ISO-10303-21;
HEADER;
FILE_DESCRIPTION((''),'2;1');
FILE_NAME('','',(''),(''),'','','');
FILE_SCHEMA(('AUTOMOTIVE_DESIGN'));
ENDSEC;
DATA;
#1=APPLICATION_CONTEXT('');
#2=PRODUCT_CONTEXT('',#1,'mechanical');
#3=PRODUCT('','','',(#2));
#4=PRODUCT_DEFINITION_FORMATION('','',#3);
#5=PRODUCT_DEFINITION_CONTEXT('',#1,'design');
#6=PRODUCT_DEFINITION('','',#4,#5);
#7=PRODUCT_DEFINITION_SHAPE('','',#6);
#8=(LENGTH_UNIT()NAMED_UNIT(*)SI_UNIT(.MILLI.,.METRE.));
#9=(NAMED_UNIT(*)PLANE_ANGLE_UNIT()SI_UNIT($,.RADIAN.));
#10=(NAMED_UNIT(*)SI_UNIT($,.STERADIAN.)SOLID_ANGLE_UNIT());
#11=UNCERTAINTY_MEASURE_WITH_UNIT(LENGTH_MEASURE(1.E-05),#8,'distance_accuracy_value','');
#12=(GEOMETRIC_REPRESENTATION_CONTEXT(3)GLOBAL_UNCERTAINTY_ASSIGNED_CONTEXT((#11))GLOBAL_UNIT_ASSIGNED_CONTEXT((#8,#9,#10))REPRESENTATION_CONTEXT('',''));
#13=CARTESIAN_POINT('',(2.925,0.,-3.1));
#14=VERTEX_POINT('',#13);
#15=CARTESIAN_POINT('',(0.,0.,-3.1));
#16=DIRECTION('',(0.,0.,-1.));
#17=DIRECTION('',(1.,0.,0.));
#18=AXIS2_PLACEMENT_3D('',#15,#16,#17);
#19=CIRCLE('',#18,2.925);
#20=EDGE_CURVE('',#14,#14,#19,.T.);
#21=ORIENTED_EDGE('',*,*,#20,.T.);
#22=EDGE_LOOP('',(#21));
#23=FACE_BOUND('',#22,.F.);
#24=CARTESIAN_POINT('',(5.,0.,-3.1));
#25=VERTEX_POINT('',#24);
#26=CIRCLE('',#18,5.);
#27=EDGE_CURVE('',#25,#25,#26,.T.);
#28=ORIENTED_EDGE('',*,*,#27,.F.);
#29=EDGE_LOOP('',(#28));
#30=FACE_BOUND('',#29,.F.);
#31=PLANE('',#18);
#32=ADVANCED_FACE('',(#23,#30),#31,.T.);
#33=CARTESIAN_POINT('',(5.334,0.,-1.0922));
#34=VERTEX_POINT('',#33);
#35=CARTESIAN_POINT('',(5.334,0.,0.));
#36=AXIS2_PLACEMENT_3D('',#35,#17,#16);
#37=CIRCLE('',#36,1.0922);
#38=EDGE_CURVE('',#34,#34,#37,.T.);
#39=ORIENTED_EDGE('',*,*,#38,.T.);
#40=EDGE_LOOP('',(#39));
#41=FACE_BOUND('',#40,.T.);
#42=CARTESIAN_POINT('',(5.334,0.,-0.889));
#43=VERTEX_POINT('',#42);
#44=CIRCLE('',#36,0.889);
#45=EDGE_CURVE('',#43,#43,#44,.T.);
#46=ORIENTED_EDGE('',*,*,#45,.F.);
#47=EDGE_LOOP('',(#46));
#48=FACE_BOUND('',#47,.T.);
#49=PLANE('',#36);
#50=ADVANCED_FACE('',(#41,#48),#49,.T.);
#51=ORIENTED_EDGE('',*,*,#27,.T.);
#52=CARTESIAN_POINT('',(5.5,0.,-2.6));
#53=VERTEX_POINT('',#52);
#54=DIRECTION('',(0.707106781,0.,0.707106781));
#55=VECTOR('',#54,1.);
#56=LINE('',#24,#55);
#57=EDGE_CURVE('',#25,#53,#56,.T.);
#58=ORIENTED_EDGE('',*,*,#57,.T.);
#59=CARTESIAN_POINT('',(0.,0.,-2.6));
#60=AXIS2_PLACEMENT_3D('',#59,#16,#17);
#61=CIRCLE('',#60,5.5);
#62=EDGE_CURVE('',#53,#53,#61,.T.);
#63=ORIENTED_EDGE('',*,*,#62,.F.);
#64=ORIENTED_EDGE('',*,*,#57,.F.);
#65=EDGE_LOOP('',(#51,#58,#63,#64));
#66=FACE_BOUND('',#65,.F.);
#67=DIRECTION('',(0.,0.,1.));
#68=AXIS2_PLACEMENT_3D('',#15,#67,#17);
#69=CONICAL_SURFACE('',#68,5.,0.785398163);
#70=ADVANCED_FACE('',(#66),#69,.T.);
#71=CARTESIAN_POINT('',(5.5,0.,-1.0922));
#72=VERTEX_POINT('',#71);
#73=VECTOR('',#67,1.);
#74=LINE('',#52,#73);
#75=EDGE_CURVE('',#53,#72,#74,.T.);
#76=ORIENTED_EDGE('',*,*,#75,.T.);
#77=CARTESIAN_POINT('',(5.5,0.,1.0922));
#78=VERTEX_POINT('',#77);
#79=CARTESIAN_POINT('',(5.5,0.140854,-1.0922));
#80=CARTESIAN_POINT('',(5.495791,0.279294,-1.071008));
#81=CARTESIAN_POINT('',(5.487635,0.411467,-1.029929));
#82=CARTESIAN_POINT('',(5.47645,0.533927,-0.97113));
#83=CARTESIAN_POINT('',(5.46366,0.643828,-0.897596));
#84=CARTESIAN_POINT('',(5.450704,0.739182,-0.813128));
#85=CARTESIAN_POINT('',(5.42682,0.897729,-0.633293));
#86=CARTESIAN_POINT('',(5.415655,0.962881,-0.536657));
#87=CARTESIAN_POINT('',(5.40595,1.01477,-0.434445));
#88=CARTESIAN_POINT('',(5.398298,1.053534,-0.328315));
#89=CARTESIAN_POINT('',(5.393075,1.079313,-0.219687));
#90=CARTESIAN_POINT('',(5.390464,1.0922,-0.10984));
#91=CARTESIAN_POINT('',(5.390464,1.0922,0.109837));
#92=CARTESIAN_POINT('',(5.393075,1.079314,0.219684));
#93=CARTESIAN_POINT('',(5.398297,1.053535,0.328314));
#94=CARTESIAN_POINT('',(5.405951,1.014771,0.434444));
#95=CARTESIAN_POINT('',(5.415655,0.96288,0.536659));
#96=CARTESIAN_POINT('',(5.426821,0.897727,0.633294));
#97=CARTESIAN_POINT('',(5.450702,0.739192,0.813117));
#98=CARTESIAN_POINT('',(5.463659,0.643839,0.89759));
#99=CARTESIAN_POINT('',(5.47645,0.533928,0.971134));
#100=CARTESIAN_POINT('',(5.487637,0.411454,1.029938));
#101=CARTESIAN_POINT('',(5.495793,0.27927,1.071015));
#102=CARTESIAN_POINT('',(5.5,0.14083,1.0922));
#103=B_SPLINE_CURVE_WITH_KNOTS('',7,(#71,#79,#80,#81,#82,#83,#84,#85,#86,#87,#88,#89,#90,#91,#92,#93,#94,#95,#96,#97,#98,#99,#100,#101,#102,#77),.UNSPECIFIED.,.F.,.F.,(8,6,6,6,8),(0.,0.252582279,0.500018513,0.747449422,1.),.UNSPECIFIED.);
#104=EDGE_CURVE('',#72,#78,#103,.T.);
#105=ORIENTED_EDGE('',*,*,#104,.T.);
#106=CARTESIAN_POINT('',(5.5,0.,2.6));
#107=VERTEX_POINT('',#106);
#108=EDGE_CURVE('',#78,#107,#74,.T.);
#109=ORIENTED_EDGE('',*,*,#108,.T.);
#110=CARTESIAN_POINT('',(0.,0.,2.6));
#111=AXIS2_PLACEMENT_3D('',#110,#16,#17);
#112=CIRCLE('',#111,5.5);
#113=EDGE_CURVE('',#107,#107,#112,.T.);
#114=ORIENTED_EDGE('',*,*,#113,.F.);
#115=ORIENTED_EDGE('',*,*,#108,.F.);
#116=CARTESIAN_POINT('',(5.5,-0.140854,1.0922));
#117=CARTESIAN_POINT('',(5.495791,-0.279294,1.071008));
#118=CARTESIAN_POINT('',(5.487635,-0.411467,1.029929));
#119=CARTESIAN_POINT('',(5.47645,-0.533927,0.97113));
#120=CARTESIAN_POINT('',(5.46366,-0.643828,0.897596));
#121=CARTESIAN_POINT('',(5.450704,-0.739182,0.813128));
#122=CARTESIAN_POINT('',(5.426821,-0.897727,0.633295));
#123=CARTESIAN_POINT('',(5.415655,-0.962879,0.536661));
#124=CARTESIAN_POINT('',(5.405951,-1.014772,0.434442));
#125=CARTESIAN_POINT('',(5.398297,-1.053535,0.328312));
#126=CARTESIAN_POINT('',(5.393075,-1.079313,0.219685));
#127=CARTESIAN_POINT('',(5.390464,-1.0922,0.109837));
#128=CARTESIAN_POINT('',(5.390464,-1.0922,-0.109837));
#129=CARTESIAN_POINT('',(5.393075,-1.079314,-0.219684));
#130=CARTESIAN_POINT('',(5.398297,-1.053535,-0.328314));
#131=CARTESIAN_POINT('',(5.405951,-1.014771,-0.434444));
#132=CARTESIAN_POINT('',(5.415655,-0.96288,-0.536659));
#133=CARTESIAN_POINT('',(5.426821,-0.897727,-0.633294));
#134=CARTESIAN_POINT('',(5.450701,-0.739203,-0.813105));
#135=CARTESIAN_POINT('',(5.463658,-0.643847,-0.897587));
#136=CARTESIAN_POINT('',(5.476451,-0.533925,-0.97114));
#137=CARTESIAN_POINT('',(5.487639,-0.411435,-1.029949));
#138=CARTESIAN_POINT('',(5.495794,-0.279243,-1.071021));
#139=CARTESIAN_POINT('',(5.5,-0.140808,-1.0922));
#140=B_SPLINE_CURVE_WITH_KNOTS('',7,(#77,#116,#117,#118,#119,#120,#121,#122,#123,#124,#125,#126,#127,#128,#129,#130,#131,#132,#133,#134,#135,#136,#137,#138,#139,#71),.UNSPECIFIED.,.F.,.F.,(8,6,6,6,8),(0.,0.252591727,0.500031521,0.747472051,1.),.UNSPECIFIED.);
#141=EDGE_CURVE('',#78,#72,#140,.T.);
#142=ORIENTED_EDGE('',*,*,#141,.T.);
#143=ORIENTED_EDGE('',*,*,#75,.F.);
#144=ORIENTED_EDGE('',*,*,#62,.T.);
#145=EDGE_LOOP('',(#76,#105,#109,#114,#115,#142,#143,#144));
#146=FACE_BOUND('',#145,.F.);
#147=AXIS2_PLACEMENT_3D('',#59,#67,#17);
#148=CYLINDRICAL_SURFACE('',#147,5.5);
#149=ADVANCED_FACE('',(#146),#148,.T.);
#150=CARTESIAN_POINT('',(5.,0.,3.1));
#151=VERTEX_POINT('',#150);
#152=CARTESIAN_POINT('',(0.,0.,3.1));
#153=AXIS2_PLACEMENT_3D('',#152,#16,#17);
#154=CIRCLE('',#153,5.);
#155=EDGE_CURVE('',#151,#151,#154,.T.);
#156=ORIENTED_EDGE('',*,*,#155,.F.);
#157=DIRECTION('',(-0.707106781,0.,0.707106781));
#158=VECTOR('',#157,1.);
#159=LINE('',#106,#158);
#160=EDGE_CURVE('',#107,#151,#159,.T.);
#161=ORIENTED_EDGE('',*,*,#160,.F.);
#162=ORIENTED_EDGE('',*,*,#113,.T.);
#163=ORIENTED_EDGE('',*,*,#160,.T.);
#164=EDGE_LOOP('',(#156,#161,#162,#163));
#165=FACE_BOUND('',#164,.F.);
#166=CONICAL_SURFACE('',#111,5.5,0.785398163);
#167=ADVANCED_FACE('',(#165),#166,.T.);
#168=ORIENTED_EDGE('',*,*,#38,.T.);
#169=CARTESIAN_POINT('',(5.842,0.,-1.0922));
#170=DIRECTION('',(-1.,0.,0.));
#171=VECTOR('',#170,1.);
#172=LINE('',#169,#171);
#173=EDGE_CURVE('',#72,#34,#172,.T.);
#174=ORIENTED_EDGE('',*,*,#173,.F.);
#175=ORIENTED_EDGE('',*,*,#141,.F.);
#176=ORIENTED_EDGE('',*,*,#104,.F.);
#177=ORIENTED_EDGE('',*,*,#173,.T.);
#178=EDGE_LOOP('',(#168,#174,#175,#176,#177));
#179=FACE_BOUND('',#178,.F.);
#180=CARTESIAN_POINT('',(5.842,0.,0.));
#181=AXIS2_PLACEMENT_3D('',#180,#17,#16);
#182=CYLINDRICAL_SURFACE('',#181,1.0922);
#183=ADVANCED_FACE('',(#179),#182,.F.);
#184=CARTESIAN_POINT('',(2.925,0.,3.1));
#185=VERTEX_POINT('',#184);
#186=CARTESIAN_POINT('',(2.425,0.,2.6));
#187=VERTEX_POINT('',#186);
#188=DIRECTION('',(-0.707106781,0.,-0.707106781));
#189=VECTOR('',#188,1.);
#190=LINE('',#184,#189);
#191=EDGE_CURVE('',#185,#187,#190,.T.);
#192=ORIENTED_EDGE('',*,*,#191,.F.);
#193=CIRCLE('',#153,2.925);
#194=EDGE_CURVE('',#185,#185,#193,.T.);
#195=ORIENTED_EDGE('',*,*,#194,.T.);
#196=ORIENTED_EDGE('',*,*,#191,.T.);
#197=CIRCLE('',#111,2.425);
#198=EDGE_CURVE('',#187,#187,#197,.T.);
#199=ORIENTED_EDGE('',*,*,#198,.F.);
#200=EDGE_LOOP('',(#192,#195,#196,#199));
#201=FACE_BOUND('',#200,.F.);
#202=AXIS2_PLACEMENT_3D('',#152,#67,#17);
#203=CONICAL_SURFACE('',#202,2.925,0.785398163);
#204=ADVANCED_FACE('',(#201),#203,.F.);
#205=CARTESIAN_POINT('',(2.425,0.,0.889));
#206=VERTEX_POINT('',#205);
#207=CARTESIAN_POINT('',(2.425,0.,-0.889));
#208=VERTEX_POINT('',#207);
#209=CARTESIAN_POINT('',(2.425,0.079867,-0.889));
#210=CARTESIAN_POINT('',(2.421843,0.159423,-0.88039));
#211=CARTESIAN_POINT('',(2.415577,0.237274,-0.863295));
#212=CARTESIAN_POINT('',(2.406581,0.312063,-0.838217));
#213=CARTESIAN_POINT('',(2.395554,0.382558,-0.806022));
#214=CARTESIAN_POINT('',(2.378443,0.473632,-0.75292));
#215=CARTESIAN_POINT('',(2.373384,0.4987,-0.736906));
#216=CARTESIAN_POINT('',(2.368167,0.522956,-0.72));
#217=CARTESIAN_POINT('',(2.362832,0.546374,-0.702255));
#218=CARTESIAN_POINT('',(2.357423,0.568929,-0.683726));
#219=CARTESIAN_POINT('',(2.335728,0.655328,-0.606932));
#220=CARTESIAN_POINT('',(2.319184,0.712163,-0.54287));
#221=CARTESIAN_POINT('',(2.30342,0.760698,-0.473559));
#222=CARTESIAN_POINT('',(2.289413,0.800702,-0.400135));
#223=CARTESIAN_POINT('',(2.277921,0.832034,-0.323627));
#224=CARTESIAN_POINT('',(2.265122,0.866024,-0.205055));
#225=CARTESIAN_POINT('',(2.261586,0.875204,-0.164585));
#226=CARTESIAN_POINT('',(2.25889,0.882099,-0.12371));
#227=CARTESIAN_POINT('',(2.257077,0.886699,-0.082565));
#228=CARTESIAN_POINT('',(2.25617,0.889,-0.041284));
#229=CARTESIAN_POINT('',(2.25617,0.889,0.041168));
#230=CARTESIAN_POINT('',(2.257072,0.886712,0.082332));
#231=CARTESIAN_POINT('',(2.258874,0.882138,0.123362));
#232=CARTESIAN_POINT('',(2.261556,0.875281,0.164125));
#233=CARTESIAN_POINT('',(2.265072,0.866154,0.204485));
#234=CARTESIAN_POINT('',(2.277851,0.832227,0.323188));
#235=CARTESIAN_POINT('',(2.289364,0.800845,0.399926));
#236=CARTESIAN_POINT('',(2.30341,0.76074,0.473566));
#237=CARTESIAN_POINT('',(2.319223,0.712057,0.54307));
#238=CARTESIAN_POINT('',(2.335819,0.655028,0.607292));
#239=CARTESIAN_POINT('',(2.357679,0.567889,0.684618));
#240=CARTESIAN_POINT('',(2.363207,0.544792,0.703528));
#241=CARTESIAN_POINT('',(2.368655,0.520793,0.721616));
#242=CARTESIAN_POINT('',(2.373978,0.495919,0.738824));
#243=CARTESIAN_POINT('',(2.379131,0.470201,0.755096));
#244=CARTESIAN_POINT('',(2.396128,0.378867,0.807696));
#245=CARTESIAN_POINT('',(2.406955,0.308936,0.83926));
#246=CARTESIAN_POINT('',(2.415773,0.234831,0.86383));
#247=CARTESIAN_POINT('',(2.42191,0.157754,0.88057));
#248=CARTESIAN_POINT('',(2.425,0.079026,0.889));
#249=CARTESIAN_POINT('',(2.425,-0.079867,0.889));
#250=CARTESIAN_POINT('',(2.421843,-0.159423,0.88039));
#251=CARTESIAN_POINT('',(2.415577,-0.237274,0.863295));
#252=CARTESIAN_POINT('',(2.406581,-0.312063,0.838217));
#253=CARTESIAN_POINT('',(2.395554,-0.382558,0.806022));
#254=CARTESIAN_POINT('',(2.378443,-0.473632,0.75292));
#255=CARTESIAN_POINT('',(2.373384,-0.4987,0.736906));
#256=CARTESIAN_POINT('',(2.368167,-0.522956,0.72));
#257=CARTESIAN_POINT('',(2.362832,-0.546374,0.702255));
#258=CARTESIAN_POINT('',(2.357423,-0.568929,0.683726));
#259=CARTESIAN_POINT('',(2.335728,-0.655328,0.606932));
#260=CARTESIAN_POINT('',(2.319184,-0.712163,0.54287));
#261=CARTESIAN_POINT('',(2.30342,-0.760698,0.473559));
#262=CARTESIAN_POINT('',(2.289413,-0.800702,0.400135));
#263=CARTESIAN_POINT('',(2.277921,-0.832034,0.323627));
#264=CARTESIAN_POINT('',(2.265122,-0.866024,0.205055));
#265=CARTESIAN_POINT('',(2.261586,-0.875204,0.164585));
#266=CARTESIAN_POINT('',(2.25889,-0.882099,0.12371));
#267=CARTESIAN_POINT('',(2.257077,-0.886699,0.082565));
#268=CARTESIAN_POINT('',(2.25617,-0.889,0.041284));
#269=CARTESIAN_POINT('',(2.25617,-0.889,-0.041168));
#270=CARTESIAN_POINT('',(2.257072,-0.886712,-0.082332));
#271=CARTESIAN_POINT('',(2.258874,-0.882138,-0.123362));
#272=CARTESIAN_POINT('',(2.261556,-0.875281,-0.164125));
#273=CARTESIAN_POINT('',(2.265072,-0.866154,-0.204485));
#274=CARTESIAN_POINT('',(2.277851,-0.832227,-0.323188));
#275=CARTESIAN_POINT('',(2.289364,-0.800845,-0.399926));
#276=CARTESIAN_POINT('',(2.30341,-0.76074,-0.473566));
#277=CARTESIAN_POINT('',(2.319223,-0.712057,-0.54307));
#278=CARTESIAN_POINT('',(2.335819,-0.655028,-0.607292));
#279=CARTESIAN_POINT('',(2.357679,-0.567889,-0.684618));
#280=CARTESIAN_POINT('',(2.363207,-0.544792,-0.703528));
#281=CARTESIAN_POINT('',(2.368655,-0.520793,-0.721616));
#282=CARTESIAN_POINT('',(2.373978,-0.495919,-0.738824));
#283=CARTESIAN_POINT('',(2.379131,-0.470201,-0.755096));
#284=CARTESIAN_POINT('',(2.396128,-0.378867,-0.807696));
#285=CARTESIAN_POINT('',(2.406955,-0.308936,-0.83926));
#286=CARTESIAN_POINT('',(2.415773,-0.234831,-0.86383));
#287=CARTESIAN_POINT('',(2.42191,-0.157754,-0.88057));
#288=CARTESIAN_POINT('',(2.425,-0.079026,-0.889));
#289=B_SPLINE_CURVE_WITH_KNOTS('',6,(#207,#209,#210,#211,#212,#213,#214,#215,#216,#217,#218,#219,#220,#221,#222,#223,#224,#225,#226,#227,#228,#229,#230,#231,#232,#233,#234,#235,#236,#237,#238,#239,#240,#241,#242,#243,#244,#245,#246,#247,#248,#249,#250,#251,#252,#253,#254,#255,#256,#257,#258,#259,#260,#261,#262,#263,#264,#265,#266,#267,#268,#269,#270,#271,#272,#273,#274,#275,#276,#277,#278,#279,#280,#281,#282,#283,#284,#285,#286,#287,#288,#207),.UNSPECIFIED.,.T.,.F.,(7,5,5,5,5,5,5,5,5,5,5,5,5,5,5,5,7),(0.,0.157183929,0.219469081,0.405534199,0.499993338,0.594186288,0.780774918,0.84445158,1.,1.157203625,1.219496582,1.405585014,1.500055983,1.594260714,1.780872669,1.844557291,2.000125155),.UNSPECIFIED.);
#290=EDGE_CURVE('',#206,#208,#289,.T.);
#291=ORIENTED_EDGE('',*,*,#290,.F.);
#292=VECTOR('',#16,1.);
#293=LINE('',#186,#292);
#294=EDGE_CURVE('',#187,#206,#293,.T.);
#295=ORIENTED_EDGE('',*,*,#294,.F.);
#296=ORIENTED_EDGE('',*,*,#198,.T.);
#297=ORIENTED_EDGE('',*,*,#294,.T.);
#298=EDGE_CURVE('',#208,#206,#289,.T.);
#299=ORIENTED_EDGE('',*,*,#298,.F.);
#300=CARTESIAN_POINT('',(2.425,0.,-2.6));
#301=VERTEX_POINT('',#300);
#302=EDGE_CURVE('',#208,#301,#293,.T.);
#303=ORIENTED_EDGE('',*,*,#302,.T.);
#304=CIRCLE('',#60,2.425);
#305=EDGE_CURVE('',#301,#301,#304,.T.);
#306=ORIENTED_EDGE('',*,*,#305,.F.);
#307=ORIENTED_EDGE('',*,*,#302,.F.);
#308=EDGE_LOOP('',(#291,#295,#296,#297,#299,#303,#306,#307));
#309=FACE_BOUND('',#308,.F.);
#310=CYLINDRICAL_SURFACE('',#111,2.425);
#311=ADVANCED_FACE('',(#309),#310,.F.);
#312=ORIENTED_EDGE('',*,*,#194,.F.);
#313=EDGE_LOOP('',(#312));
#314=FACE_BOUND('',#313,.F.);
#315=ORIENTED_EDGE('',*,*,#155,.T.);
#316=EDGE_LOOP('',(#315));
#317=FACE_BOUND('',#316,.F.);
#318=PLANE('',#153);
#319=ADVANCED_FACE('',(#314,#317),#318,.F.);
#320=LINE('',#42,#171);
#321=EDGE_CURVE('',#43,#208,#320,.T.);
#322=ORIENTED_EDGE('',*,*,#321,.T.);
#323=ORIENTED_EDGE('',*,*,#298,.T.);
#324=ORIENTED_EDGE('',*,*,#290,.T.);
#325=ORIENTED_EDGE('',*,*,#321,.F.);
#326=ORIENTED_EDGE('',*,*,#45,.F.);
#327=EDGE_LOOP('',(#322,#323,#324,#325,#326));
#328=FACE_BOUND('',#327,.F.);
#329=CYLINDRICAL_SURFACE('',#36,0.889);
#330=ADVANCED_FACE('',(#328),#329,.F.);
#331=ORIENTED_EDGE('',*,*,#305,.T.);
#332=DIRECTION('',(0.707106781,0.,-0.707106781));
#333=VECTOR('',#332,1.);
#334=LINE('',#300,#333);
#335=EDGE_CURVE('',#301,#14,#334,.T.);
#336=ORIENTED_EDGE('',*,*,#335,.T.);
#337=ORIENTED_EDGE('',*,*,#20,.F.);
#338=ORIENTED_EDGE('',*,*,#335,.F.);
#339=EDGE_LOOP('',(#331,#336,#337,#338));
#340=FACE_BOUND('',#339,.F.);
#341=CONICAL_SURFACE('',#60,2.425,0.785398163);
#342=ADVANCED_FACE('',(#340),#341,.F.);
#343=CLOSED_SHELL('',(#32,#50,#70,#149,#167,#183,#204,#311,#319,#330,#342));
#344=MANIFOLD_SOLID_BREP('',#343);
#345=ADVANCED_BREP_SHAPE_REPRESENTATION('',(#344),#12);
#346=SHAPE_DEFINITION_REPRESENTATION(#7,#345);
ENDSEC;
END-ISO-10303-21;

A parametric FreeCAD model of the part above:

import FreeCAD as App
import Part
import Sketcher
from FreeCAD import Vector
Q = App.Units.Quantity


def add_polygon(sketch, points):
    """Adds a closed chain of lines whose ends are joined by coincident constraints."""
    first, n = sketch.GeometryCount, len(points)
    for a, b in zip(points, points[1:] + points[:1]):
        sketch.addGeometry(Part.LineSegment(App.Vector(*a, 0), App.Vector(*b, 0)), False)
    for i in range(n):
        sketch.addConstraint(Sketcher.Constraint("Coincident", first + i, 2, first + (i + 1) % n, 1))

doc = App.newDocument("Part")
body = doc.addObject("PartDesign::Body", "Body")

sketch1 = body.newObject("Sketcher::SketchObject", "Sketch")
sketch1.AttachmentSupport = (doc.getObject("YZ_Plane"), [""])
sketch1.MapMode = "FlatFace"
add_polygon(sketch1, [(5, 3.1), (2.9, 3.1), (2.4, 2.6), (2.4, -2.6), (2.9, -3.1), (5, -3.1), (5.5, -2.6), (5.5, 2.6)])
sketch1.addConstraint([
    Sketcher.Constraint("Horizontal", 0),
    Sketcher.Constraint("Vertical", 2),
    Sketcher.Constraint("Horizontal", 4),
    Sketcher.Constraint("Vertical", 6),
    Sketcher.Constraint("Symmetric", 0, 2, 3, 2, -1),
    Sketcher.Constraint("Perpendicular", 1, 3),
    Sketcher.Constraint("Perpendicular", 3, 5),
    Sketcher.Constraint("Perpendicular", 5, 7),
    Sketcher.Constraint("Horizontal", 2, 2, 5, 2),
    Sketcher.Constraint("Horizontal", 1, 2, 6, 2),
    Sketcher.Constraint("Vertical", 4, 2, 7, 2),
    Sketcher.Constraint("DistanceX", 0, 2, 0, 1, 2.075),
    Sketcher.Constraint("DistanceY", 2, 2, 2, 1, 5.2),
    Sketcher.Constraint("DistanceX", -1, 1, 0, 2, 2.925),
    Sketcher.Constraint("DistanceY", -1, 1, 0, 2, 3.1),
])
revolution = body.newObject("PartDesign::Revolution", "Revolution")
revolution.Profile = sketch1
revolution.ReferenceAxis = (sketch1, ["V_Axis"])
revolution.Angle = 360

sketch2 = body.newObject("Sketcher::SketchObject", "Sketch001")
sketch2.AttachmentSupport = (doc.getObject("YZ_Plane"), [""])
sketch2.MapMode = "FlatFace"
sketch2.AttachmentOffset = App.Placement(Vector(0, 0, 0.23 * 25.4), App.Rotation())
sketch2.addGeometry(Part.Circle(Vector(0, 0, 0), Vector(0, 0, 1), 1.1), False)
sketch2.addConstraint([
    Sketcher.Constraint("Coincident", 0, 3, -1, 1),
    Sketcher.Constraint("Diameter", 0, Q("0.086 in")),
])
pocket1 = body.newObject("PartDesign::Pocket", "Pocket")
pocket1.Profile = sketch2
pocket1.Length = Q("0.02 in")

sketch3 = body.newObject("Sketcher::SketchObject", "Sketch002")
sketch3.AttachmentSupport = (doc.getObject("YZ_Plane"), [""])
sketch3.MapMode = "FlatFace"
sketch3.AttachmentOffset = App.Placement(Vector(0, 0, 0.21 * 25.4), App.Rotation())
sketch3.addGeometry(Part.Circle(Vector(0, 0, 0), Vector(0, 0, 1), 0.9), False)
sketch3.addConstraint([
    Sketcher.Constraint("Coincident", 0, 3, -1, 1),
    Sketcher.Constraint("Diameter", 0, Q("0.07 in")),
])
pocket2 = body.newObject("PartDesign::Pocket", "Pocket001")
pocket2.Profile = sketch3
pocket2.Type = "UpToFirst"

doc.recompute()
